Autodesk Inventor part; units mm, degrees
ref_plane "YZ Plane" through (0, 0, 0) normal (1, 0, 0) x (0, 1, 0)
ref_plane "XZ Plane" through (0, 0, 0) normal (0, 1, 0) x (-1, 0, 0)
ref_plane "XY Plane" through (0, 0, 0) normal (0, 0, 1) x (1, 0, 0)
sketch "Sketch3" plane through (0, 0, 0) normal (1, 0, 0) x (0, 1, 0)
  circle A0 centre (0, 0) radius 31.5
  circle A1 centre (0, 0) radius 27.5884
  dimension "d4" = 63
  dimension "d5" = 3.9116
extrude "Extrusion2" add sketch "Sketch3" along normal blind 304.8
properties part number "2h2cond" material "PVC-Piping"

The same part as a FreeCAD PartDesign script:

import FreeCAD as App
import Part
import Sketcher
from FreeCAD import Vector
Q = App.Units.Quantity

doc = App.newDocument("Part")
body = doc.addObject("PartDesign::Body", "Body")

# Sketch on YZ plane
sketch1 = doc.addObject("Sketcher::SketchObject", "Sketch")
body.addObject(sketch1)
sketch1.AttachmentSupport = (doc.YZ_Plane, [""])
sketch1.MapMode = "FlatFace"
sketch1.addGeometry(Part.Circle(Vector(0, 0, 0), Vector(0, 0, 1), 32), False)
sketch1.addGeometry(Part.Circle(Vector(0, 0, 0), Vector(0, 0, 1), 28), False)
sketch1.addConstraint(Sketcher.Constraint("Coincident", 0, 3, -1, 1))
sketch1.addConstraint(Sketcher.Constraint("Coincident", 1, 3, -1, 1))
sketch1.addConstraint(Sketcher.Constraint("Diameter", 0, Q("63 mm")))
sketch1.addConstraint(Sketcher.Constraint("Diameter", 1, Q("55.1768 mm")))
pad1 = doc.addObject("PartDesign::Pad", "Pad")
body.addObject(pad1)
pad1.Profile = sketch1
pad1.Length = 304.8

doc.recompute()
